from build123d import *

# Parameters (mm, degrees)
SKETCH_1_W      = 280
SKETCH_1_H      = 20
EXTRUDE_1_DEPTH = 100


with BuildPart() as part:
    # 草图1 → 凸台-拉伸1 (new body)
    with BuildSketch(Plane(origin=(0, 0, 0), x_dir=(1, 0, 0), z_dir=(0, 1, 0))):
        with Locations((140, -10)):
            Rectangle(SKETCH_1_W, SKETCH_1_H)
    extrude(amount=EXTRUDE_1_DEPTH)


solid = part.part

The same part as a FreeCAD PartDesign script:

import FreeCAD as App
import Part
import Sketcher


def add_polygon(sketch, points):
    """Adds a closed chain of lines whose ends are joined by coincident constraints."""
    first, n = sketch.GeometryCount, len(points)
    for a, b in zip(points, points[1:] + points[:1]):
        sketch.addGeometry(Part.LineSegment(App.Vector(*a, 0), App.Vector(*b, 0)), False)
    for i in range(n):
        sketch.addConstraint(Sketcher.Constraint("Coincident", first + i, 2, first + (i + 1) % n, 1))

doc = App.newDocument("Part")
body = doc.addObject("PartDesign::Body", "Body")

# Sketch on XZ plane
sketch1 = body.newObject("Sketcher::SketchObject", "Sketch")
sketch1.AttachmentSupport = (doc.getObject("XZ_Plane"), [""])
sketch1.MapMode = "FlatFace"
add_polygon(sketch1, [(0, 0), (0, 20), (280, 20), (280, 0)])  # lines 0-3
sketch1.addConstraint([
    Sketcher.Constraint("Vertical", 0),
    Sketcher.Constraint("Horizontal", 1),
    Sketcher.Constraint("Vertical", 2),
    Sketcher.Constraint("Horizontal", 3),
    Sketcher.Constraint("Coincident", 3, 2, -1, 1),
    Sketcher.Constraint("DistanceX", 1, 1, 1, 2, 280.0),
    Sketcher.Constraint("DistanceY", 0, 1, 0, 2, 20.0),
])
pad1 = body.newObject("PartDesign::Pad", "Pad")
pad1.Profile = sketch1
pad1.Length = 100
pad1.Reversed = True

doc.recompute()
